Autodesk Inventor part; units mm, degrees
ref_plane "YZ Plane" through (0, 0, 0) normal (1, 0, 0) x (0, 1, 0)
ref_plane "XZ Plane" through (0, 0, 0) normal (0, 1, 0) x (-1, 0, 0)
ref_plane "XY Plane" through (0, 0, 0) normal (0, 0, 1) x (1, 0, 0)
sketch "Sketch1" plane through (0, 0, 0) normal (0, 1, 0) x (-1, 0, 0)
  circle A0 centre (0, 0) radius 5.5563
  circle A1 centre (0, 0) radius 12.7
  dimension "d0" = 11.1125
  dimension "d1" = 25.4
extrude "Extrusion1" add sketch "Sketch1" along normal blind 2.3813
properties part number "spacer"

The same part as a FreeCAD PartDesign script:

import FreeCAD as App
import Part
import Sketcher

V = App.Vector
Q = App.Units.Quantity

doc = App.newDocument("Part")
params = doc.addObject("Spreadsheet::Sheet", "Params")
for row, (alias, value) in enumerate([
    ("sketch1_diameter", "1 in"),
    ("sketch1_diameter2", "0.4375 in"),
    ("pad1_length", "0.093752 in"),
], start=1):
    params.set(f"A{row}", alias)
    params.set(f"B{row}", "=" + value)
    params.setAlias(f"B{row}", alias)

body = doc.addObject("PartDesign::Body", "Body")

# Sketch on XZ plane
sketch1 = body.newObject("Sketcher::SketchObject", "Sketch")
sketch1.AttachmentSupport = (doc.getObject("XZ_Plane"), [""])
sketch1.MapMode = "FlatFace"
sketch1.addGeometry([
    Part.Circle(V(0, 0, 0), V(0, 0, 1), 13),
    Part.Circle(V(0, 0, 0), V(0, 0, 1), 6),
], False)
sketch1.addConstraint([
    Sketcher.Constraint("Coincident", 0, 3, -1, 1),
    Sketcher.Constraint("Coincident", 1, 3, -1, 1),
    Sketcher.Constraint("Diameter", 0, Q("1 in")),
    Sketcher.Constraint("Diameter", 1, Q("0.4375 in")),
])
sketch1.setExpression("Constraints[2]", "Params.sketch1_diameter")
sketch1.setExpression("Constraints[3]", "Params.sketch1_diameter2")
pad1 = body.newObject("PartDesign::Pad", "Pad")
pad1.Profile = sketch1
pad1.setExpression("Length", "Params.pad1_length")
pad1.Reversed = True

doc.recompute()
